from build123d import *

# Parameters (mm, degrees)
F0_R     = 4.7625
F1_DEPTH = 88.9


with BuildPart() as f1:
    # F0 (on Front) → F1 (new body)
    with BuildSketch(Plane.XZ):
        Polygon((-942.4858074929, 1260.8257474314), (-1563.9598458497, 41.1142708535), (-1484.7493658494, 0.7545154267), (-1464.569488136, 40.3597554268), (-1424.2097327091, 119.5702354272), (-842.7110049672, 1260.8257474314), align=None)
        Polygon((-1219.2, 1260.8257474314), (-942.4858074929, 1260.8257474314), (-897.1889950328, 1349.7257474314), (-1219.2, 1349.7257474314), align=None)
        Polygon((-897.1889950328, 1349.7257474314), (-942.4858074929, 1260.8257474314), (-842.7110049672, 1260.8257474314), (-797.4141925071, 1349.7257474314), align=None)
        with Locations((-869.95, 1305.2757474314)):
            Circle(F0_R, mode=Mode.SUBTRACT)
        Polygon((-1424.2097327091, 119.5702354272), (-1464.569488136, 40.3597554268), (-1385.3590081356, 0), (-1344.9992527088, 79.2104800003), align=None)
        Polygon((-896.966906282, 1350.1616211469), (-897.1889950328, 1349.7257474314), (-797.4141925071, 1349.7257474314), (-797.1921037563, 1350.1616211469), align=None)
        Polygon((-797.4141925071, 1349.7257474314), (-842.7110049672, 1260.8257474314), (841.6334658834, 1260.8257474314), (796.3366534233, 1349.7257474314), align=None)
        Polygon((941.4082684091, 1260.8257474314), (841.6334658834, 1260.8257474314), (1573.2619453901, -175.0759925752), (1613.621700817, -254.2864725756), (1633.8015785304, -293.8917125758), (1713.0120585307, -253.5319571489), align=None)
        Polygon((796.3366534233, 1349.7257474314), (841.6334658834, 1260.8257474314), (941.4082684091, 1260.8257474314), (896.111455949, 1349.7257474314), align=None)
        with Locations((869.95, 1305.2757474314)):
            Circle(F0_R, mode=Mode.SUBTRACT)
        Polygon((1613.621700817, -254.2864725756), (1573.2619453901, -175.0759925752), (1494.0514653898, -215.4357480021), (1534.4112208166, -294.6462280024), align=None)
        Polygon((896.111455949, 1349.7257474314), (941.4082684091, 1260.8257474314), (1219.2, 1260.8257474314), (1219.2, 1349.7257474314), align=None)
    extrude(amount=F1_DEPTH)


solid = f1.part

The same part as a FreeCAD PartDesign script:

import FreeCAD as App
import Part
import Sketcher

V = App.Vector
Q = App.Units.Quantity

doc = App.newDocument("Part")
body = doc.addObject("PartDesign::Body", "Body")

# Sketch on XZ plane
sketch1 = body.newObject("Sketcher::SketchObject", "Sketch")
sketch1.AttachmentSupport = (doc.getObject("XZ_Plane"), [""])
sketch1.MapMode = "FlatFace"
sketch1.addGeometry([
    Part.LineSegment(V(-942.49, 1260.83, 0), V(-1563.96, 41.11, 0)),  # 0
    Part.LineSegment(V(-1563.96, 41.11, 0), V(-1484.75, 0.75, 0)),  # 1
    Part.LineSegment(V(-1484.75, 0.75, 0), V(-1464.57, 40.36, 0)),  # 2
    Part.LineSegment(V(-1464.57, 40.36, 0), V(-1385.36, 0, 0)),  # 3
    Part.LineSegment(V(-1385.36, 0, 0), V(-1345, 79.21, 0)),  # 4
    Part.LineSegment(V(-1345, 79.21, 0), V(-1424.21, 119.57, 0)),  # 5
    Part.LineSegment(V(-1424.21, 119.57, 0), V(-842.71, 1260.83, 0)),  # 6
    Part.LineSegment(V(-842.71, 1260.83, 0), V(841.63, 1260.83, 0)),  # 7
    Part.LineSegment(V(841.63, 1260.83, 0), V(1573.26, -175.08, 0)),  # 8
    Part.LineSegment(V(1573.26, -175.08, 0), V(1494.05, -215.44, 0)),  # 9
    Part.LineSegment(V(1494.05, -215.44, 0), V(1534.41, -294.65, 0)),  # 10
    Part.LineSegment(V(1534.41, -294.65, 0), V(1613.62, -254.29, 0)),  # 11
    Part.LineSegment(V(1613.62, -254.29, 0), V(1633.8, -293.89, 0)),  # 12
    Part.LineSegment(V(1633.8, -293.89, 0), V(1713.01, -253.53, 0)),  # 13
    Part.LineSegment(V(1713.01, -253.53, 0), V(941.41, 1260.83, 0)),  # 14
    Part.LineSegment(V(941.41, 1260.83, 0), V(1219.2, 1260.83, 0)),  # 15
    Part.LineSegment(V(1219.2, 1260.83, 0), V(1219.2, 1349.73, 0)),  # 16
    Part.LineSegment(V(1219.2, 1349.73, 0), V(-797.41, 1349.73, 0)),  # 17
    Part.LineSegment(V(-797.41, 1349.73, 0), V(-797.19, 1350.16, 0)),  # 18
    Part.LineSegment(V(-797.19, 1350.16, 0), V(-896.97, 1350.16, 0)),  # 19
    Part.LineSegment(V(-896.97, 1350.16, 0), V(-897.19, 1349.73, 0)),  # 20
    Part.LineSegment(V(-897.19, 1349.73, 0), V(-1219.2, 1349.73, 0)),  # 21
    Part.LineSegment(V(-1219.2, 1349.73, 0), V(-1219.2, 1260.83, 0)),  # 22
    Part.LineSegment(V(-1219.2, 1260.83, 0), V(-942.49, 1260.83, 0)),  # 23
    Part.Circle(V(-869.95, 1305.28, 0), V(0, 0, 1), 4.76),  # 24
    Part.Circle(V(869.95, 1305.28, 0), V(0, 0, 1), 4.76),  # 25
], False)
sketch1.addConstraint([
    Sketcher.Constraint("Coincident", 0, 2, 1, 1),
    Sketcher.Constraint("Coincident", 1, 2, 2, 1),
    Sketcher.Constraint("Coincident", 2, 2, 3, 1),
    Sketcher.Constraint("Coincident", 3, 2, 4, 1),
    Sketcher.Constraint("Coincident", 4, 2, 5, 1),
    Sketcher.Constraint("Coincident", 5, 2, 6, 1),
    Sketcher.Constraint("Coincident", 6, 2, 7, 1),
    Sketcher.Constraint("Coincident", 7, 2, 8, 1),
    Sketcher.Constraint("Coincident", 8, 2, 9, 1),
    Sketcher.Constraint("Coincident", 9, 2, 10, 1),
    Sketcher.Constraint("Coincident", 10, 2, 11, 1),
    Sketcher.Constraint("Coincident", 11, 2, 12, 1),
    Sketcher.Constraint("Coincident", 12, 2, 13, 1),
    Sketcher.Constraint("Coincident", 13, 2, 14, 1),
    Sketcher.Constraint("Coincident", 14, 2, 15, 1),
    Sketcher.Constraint("Coincident", 15, 2, 16, 1),
    Sketcher.Constraint("Coincident", 16, 2, 17, 1),
    Sketcher.Constraint("Coincident", 17, 2, 18, 1),
    Sketcher.Constraint("Coincident", 18, 2, 19, 1),
    Sketcher.Constraint("Coincident", 19, 2, 20, 1),
    Sketcher.Constraint("Coincident", 20, 2, 21, 1),
    Sketcher.Constraint("Coincident", 21, 2, 22, 1),
    Sketcher.Constraint("Coincident", 22, 2, 23, 1),
    Sketcher.Constraint("Coincident", 23, 2, 0, 1),
    Sketcher.Constraint("Horizontal", 7),
    Sketcher.Constraint("Horizontal", 15),
    Sketcher.Constraint("Vertical", 16),
    Sketcher.Constraint("Horizontal", 17),
    Sketcher.Constraint("Horizontal", 19),
    Sketcher.Constraint("Horizontal", 21),
    Sketcher.Constraint("Vertical", 22),
    Sketcher.Constraint("Horizontal", 23),
    Sketcher.Constraint("Equal", 24, 25),
    Sketcher.Constraint("Symmetric", 24, 3, 25, 3, -2),
    Sketcher.Constraint("Symmetric", 16, 2, 21, 2, -2),
    Sketcher.Constraint("PointOnObject", 3, 2, -1),
    Sketcher.Constraint("Perpendicular", 0, 1),
    Sketcher.Constraint("Perpendicular", 1, 2),
    Sketcher.Constraint("Perpendicular", 2, 3),
    Sketcher.Constraint("Perpendicular", 3, 4),
    Sketcher.Constraint("Perpendicular", 4, 5),
    Sketcher.Constraint("Perpendicular", 5, 6),
    Sketcher.Constraint("Perpendicular", 8, 9),
    Sketcher.Constraint("Perpendicular", 9, 10),
    Sketcher.Constraint("Perpendicular", 10, 11),
    Sketcher.Constraint("Perpendicular", 11, 12),
    Sketcher.Constraint("Perpendicular", 12, 13),
    Sketcher.Constraint("Perpendicular", 13, 14),
    Sketcher.Constraint("Parallel", 6, 18),
    Sketcher.Constraint("Parallel", 18, 20),
    Sketcher.Constraint("Horizontal", 7, 2, 14, 2),
    Sketcher.Constraint("Horizontal", 15, 2, 22, 2),
    Sketcher.Constraint("Equal", 1, 3),
    Sketcher.Constraint("Equal", 3, 4),
    Sketcher.Constraint("Equal", 4, 5),
    Sketcher.Constraint("Equal", 5, 9),
    Sketcher.Constraint("Equal", 9, 10),
    Sketcher.Constraint("Equal", 10, 11),
    Sketcher.Constraint("Equal", 2, 12),
    Sketcher.Constraint("Equal", 11, 13),
    Sketcher.Constraint("Diameter", 24, Q("0.375 in")),
    Sketcher.Constraint("DistanceY", 16, 1, 16, 2, Q("3.5 in")),
    Sketcher.Constraint("DistanceX", -1, 1, 15, 2, Q("48 in")),
    Sketcher.Constraint("Angle", 0, Q("-117 deg")),
    Sketcher.Constraint("Angle", 8, Q("-63 deg")),
    Sketcher.Constraint("Distance", 1, Q("3.5 in")),
    Sketcher.Constraint("DistanceX", 24, 3, 25, 3, Q("68.5 in")),
    Sketcher.Constraint("Distance", 2, Q("1.75 in")),
    Sketcher.Constraint("DistanceY", 6, 2, 24, 3, Q("1.75 in")),
    Sketcher.Constraint("DistanceX", 7, 1, 7, 2, Q("1684.344471 mm")),
    Sketcher.Constraint("DistanceX", 15, 1, 15, 2, Q("277.791732 mm")),
    Sketcher.Constraint("DistanceX", -1, 1, 11, 2, Q("1613.621701 mm")),
    Sketcher.Constraint("DistanceX", 5, 2, 7, 2, Q("2265.843199 mm")),
    Sketcher.Constraint("DistanceX", 6, 2, 18, 2, Q("45.518901 mm")),
    Sketcher.Constraint("DistanceX", 19, 2, 6, 2, Q("54.255901 mm")),
    Sketcher.Constraint("DistanceX", 17, 2, 17, 1, Q("2016.614193 mm")),
])
pad1 = body.newObject("PartDesign::Pad", "Pad")
pad1.Profile = sketch1
pad1.Length = Q("3.5 in")

doc.recompute()
